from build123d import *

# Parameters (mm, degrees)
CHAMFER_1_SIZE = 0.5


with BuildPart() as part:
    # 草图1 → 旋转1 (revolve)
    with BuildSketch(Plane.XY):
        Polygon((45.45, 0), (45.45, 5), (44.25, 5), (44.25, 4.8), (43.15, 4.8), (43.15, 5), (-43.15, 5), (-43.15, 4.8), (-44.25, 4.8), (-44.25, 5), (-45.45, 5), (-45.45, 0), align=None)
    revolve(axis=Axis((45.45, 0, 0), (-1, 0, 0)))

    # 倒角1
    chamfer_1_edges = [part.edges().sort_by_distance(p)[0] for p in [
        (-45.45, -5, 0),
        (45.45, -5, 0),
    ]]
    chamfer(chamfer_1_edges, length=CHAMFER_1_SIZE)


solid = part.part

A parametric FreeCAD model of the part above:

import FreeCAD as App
import Part
import Sketcher

V = App.Vector


def edges_at(feature, points):
    """Names of the edges that pass closest to the given points."""
    edges = feature.Shape.Edges
    near = lambda p: min(range(len(edges)), key=lambda i: edges[i].distToShape(Part.Vertex(*p))[0])
    return sorted({f"Edge{near(p) + 1}" for p in points})

doc = App.newDocument("Part")
body = doc.addObject("PartDesign::Body", "Body")

sketch1 = body.newObject("Sketcher::SketchObject", "Sketch")
sketch1.AttachmentSupport = (doc.getObject("XY_Plane"), [""])
sketch1.MapMode = "FlatFace"
sketch1.addGeometry(Part.LineSegment(V(45.45, 0, 0), V(45.45, 5, 0)), False)
sketch1.addGeometry(Part.LineSegment(V(45.45, 5, 0), V(44.25, 5, 0)), False)
sketch1.addGeometry(Part.LineSegment(V(44.25, 5, 0), V(44.25, 4.8, 0)), False)
sketch1.addGeometry(Part.LineSegment(V(44.25, 4.8, 0), V(43.15, 4.8, 0)), False)
sketch1.addGeometry(Part.LineSegment(V(43.15, 4.8, 0), V(43.15, 5, 0)), False)
sketch1.addGeometry(Part.LineSegment(V(43.15, 5, 0), V(-43.15, 5, 0)), False)
sketch1.addGeometry(Part.LineSegment(V(-43.15, 5, 0), V(-43.15, 4.8, 0)), False)
sketch1.addGeometry(Part.LineSegment(V(-43.15, 4.8, 0), V(-44.25, 4.8, 0)), False)
sketch1.addGeometry(Part.LineSegment(V(-44.25, 4.8, 0), V(-44.25, 5, 0)), False)
sketch1.addGeometry(Part.LineSegment(V(-44.25, 5, 0), V(-45.45, 5, 0)), False)
sketch1.addGeometry(Part.LineSegment(V(-45.45, 5, 0), V(-45.45, 0, 0)), False)
sketch1.addGeometry(Part.LineSegment(V(-45.45, 0, 0), V(45.45, 0, 0)), False)
sketch1.addConstraint(Sketcher.Constraint("Coincident", 0, 2, 1, 1))
sketch1.addConstraint(Sketcher.Constraint("Coincident", 1, 2, 2, 1))
sketch1.addConstraint(Sketcher.Constraint("Coincident", 2, 2, 3, 1))
sketch1.addConstraint(Sketcher.Constraint("Coincident", 3, 2, 4, 1))
sketch1.addConstraint(Sketcher.Constraint("Coincident", 4, 2, 5, 1))
sketch1.addConstraint(Sketcher.Constraint("Coincident", 5, 2, 6, 1))
sketch1.addConstraint(Sketcher.Constraint("Coincident", 6, 2, 7, 1))
sketch1.addConstraint(Sketcher.Constraint("Coincident", 7, 2, 8, 1))
sketch1.addConstraint(Sketcher.Constraint("Coincident", 8, 2, 9, 1))
sketch1.addConstraint(Sketcher.Constraint("Coincident", 9, 2, 10, 1))
sketch1.addConstraint(Sketcher.Constraint("Coincident", 10, 2, 11, 1))
sketch1.addConstraint(Sketcher.Constraint("Coincident", 11, 2, 0, 1))
sketch1.addConstraint(Sketcher.Constraint("Vertical", 0))
sketch1.addConstraint(Sketcher.Constraint("Horizontal", 1))
sketch1.addConstraint(Sketcher.Constraint("Vertical", 2))
sketch1.addConstraint(Sketcher.Constraint("Horizontal", 3))
sketch1.addConstraint(Sketcher.Constraint("Vertical", 4))
sketch1.addConstraint(Sketcher.Constraint("Horizontal", 5))
sketch1.addConstraint(Sketcher.Constraint("Vertical", 6))
sketch1.addConstraint(Sketcher.Constraint("Horizontal", 7))
sketch1.addConstraint(Sketcher.Constraint("Vertical", 8))
sketch1.addConstraint(Sketcher.Constraint("Horizontal", 9))
sketch1.addConstraint(Sketcher.Constraint("Vertical", 10))
sketch1.addConstraint(Sketcher.Constraint("Horizontal", 11))
sketch1.addConstraint(Sketcher.Constraint("Symmetric", 10, 2, 11, 2, -1, 1))
sketch1.addConstraint(Sketcher.Constraint("Symmetric", 3, 2, 6, 2, -2))
sketch1.addConstraint(Sketcher.Constraint("Symmetric", 1, 2, 8, 2, -2))
sketch1.addConstraint(Sketcher.Constraint("Horizontal", 1, 2, 4, 2))
sketch1.addConstraint(Sketcher.Constraint("DistanceY", 0, 1, 0, 2, 5.0))
sketch1.addConstraint(Sketcher.Constraint("DistanceX", 1, 2, 1, 1, 1.2))
sketch1.addConstraint(Sketcher.Constraint("DistanceX", 3, 2, 3, 1, 1.1))
sketch1.addConstraint(Sketcher.Constraint("DistanceX", 5, 2, 5, 1, 86.3))
sketch1.addConstraint(Sketcher.Constraint("DistanceY", 2, 2, 2, 1, 0.2))
revolution = body.newObject("PartDesign::Revolution", "Revolution")
revolution.Profile = sketch1
revolution.ReferenceAxis = (sketch1, ["H_Axis"])
revolution.Angle = 360
doc.recompute()

chamfer = body.newObject("PartDesign::Chamfer", "Chamfer")
chamfer.Base = (revolution, edges_at(revolution, [(-45.45, -5, 0), (45.45, -5, 0)]))
chamfer.Size = 0.5

doc.recompute()
